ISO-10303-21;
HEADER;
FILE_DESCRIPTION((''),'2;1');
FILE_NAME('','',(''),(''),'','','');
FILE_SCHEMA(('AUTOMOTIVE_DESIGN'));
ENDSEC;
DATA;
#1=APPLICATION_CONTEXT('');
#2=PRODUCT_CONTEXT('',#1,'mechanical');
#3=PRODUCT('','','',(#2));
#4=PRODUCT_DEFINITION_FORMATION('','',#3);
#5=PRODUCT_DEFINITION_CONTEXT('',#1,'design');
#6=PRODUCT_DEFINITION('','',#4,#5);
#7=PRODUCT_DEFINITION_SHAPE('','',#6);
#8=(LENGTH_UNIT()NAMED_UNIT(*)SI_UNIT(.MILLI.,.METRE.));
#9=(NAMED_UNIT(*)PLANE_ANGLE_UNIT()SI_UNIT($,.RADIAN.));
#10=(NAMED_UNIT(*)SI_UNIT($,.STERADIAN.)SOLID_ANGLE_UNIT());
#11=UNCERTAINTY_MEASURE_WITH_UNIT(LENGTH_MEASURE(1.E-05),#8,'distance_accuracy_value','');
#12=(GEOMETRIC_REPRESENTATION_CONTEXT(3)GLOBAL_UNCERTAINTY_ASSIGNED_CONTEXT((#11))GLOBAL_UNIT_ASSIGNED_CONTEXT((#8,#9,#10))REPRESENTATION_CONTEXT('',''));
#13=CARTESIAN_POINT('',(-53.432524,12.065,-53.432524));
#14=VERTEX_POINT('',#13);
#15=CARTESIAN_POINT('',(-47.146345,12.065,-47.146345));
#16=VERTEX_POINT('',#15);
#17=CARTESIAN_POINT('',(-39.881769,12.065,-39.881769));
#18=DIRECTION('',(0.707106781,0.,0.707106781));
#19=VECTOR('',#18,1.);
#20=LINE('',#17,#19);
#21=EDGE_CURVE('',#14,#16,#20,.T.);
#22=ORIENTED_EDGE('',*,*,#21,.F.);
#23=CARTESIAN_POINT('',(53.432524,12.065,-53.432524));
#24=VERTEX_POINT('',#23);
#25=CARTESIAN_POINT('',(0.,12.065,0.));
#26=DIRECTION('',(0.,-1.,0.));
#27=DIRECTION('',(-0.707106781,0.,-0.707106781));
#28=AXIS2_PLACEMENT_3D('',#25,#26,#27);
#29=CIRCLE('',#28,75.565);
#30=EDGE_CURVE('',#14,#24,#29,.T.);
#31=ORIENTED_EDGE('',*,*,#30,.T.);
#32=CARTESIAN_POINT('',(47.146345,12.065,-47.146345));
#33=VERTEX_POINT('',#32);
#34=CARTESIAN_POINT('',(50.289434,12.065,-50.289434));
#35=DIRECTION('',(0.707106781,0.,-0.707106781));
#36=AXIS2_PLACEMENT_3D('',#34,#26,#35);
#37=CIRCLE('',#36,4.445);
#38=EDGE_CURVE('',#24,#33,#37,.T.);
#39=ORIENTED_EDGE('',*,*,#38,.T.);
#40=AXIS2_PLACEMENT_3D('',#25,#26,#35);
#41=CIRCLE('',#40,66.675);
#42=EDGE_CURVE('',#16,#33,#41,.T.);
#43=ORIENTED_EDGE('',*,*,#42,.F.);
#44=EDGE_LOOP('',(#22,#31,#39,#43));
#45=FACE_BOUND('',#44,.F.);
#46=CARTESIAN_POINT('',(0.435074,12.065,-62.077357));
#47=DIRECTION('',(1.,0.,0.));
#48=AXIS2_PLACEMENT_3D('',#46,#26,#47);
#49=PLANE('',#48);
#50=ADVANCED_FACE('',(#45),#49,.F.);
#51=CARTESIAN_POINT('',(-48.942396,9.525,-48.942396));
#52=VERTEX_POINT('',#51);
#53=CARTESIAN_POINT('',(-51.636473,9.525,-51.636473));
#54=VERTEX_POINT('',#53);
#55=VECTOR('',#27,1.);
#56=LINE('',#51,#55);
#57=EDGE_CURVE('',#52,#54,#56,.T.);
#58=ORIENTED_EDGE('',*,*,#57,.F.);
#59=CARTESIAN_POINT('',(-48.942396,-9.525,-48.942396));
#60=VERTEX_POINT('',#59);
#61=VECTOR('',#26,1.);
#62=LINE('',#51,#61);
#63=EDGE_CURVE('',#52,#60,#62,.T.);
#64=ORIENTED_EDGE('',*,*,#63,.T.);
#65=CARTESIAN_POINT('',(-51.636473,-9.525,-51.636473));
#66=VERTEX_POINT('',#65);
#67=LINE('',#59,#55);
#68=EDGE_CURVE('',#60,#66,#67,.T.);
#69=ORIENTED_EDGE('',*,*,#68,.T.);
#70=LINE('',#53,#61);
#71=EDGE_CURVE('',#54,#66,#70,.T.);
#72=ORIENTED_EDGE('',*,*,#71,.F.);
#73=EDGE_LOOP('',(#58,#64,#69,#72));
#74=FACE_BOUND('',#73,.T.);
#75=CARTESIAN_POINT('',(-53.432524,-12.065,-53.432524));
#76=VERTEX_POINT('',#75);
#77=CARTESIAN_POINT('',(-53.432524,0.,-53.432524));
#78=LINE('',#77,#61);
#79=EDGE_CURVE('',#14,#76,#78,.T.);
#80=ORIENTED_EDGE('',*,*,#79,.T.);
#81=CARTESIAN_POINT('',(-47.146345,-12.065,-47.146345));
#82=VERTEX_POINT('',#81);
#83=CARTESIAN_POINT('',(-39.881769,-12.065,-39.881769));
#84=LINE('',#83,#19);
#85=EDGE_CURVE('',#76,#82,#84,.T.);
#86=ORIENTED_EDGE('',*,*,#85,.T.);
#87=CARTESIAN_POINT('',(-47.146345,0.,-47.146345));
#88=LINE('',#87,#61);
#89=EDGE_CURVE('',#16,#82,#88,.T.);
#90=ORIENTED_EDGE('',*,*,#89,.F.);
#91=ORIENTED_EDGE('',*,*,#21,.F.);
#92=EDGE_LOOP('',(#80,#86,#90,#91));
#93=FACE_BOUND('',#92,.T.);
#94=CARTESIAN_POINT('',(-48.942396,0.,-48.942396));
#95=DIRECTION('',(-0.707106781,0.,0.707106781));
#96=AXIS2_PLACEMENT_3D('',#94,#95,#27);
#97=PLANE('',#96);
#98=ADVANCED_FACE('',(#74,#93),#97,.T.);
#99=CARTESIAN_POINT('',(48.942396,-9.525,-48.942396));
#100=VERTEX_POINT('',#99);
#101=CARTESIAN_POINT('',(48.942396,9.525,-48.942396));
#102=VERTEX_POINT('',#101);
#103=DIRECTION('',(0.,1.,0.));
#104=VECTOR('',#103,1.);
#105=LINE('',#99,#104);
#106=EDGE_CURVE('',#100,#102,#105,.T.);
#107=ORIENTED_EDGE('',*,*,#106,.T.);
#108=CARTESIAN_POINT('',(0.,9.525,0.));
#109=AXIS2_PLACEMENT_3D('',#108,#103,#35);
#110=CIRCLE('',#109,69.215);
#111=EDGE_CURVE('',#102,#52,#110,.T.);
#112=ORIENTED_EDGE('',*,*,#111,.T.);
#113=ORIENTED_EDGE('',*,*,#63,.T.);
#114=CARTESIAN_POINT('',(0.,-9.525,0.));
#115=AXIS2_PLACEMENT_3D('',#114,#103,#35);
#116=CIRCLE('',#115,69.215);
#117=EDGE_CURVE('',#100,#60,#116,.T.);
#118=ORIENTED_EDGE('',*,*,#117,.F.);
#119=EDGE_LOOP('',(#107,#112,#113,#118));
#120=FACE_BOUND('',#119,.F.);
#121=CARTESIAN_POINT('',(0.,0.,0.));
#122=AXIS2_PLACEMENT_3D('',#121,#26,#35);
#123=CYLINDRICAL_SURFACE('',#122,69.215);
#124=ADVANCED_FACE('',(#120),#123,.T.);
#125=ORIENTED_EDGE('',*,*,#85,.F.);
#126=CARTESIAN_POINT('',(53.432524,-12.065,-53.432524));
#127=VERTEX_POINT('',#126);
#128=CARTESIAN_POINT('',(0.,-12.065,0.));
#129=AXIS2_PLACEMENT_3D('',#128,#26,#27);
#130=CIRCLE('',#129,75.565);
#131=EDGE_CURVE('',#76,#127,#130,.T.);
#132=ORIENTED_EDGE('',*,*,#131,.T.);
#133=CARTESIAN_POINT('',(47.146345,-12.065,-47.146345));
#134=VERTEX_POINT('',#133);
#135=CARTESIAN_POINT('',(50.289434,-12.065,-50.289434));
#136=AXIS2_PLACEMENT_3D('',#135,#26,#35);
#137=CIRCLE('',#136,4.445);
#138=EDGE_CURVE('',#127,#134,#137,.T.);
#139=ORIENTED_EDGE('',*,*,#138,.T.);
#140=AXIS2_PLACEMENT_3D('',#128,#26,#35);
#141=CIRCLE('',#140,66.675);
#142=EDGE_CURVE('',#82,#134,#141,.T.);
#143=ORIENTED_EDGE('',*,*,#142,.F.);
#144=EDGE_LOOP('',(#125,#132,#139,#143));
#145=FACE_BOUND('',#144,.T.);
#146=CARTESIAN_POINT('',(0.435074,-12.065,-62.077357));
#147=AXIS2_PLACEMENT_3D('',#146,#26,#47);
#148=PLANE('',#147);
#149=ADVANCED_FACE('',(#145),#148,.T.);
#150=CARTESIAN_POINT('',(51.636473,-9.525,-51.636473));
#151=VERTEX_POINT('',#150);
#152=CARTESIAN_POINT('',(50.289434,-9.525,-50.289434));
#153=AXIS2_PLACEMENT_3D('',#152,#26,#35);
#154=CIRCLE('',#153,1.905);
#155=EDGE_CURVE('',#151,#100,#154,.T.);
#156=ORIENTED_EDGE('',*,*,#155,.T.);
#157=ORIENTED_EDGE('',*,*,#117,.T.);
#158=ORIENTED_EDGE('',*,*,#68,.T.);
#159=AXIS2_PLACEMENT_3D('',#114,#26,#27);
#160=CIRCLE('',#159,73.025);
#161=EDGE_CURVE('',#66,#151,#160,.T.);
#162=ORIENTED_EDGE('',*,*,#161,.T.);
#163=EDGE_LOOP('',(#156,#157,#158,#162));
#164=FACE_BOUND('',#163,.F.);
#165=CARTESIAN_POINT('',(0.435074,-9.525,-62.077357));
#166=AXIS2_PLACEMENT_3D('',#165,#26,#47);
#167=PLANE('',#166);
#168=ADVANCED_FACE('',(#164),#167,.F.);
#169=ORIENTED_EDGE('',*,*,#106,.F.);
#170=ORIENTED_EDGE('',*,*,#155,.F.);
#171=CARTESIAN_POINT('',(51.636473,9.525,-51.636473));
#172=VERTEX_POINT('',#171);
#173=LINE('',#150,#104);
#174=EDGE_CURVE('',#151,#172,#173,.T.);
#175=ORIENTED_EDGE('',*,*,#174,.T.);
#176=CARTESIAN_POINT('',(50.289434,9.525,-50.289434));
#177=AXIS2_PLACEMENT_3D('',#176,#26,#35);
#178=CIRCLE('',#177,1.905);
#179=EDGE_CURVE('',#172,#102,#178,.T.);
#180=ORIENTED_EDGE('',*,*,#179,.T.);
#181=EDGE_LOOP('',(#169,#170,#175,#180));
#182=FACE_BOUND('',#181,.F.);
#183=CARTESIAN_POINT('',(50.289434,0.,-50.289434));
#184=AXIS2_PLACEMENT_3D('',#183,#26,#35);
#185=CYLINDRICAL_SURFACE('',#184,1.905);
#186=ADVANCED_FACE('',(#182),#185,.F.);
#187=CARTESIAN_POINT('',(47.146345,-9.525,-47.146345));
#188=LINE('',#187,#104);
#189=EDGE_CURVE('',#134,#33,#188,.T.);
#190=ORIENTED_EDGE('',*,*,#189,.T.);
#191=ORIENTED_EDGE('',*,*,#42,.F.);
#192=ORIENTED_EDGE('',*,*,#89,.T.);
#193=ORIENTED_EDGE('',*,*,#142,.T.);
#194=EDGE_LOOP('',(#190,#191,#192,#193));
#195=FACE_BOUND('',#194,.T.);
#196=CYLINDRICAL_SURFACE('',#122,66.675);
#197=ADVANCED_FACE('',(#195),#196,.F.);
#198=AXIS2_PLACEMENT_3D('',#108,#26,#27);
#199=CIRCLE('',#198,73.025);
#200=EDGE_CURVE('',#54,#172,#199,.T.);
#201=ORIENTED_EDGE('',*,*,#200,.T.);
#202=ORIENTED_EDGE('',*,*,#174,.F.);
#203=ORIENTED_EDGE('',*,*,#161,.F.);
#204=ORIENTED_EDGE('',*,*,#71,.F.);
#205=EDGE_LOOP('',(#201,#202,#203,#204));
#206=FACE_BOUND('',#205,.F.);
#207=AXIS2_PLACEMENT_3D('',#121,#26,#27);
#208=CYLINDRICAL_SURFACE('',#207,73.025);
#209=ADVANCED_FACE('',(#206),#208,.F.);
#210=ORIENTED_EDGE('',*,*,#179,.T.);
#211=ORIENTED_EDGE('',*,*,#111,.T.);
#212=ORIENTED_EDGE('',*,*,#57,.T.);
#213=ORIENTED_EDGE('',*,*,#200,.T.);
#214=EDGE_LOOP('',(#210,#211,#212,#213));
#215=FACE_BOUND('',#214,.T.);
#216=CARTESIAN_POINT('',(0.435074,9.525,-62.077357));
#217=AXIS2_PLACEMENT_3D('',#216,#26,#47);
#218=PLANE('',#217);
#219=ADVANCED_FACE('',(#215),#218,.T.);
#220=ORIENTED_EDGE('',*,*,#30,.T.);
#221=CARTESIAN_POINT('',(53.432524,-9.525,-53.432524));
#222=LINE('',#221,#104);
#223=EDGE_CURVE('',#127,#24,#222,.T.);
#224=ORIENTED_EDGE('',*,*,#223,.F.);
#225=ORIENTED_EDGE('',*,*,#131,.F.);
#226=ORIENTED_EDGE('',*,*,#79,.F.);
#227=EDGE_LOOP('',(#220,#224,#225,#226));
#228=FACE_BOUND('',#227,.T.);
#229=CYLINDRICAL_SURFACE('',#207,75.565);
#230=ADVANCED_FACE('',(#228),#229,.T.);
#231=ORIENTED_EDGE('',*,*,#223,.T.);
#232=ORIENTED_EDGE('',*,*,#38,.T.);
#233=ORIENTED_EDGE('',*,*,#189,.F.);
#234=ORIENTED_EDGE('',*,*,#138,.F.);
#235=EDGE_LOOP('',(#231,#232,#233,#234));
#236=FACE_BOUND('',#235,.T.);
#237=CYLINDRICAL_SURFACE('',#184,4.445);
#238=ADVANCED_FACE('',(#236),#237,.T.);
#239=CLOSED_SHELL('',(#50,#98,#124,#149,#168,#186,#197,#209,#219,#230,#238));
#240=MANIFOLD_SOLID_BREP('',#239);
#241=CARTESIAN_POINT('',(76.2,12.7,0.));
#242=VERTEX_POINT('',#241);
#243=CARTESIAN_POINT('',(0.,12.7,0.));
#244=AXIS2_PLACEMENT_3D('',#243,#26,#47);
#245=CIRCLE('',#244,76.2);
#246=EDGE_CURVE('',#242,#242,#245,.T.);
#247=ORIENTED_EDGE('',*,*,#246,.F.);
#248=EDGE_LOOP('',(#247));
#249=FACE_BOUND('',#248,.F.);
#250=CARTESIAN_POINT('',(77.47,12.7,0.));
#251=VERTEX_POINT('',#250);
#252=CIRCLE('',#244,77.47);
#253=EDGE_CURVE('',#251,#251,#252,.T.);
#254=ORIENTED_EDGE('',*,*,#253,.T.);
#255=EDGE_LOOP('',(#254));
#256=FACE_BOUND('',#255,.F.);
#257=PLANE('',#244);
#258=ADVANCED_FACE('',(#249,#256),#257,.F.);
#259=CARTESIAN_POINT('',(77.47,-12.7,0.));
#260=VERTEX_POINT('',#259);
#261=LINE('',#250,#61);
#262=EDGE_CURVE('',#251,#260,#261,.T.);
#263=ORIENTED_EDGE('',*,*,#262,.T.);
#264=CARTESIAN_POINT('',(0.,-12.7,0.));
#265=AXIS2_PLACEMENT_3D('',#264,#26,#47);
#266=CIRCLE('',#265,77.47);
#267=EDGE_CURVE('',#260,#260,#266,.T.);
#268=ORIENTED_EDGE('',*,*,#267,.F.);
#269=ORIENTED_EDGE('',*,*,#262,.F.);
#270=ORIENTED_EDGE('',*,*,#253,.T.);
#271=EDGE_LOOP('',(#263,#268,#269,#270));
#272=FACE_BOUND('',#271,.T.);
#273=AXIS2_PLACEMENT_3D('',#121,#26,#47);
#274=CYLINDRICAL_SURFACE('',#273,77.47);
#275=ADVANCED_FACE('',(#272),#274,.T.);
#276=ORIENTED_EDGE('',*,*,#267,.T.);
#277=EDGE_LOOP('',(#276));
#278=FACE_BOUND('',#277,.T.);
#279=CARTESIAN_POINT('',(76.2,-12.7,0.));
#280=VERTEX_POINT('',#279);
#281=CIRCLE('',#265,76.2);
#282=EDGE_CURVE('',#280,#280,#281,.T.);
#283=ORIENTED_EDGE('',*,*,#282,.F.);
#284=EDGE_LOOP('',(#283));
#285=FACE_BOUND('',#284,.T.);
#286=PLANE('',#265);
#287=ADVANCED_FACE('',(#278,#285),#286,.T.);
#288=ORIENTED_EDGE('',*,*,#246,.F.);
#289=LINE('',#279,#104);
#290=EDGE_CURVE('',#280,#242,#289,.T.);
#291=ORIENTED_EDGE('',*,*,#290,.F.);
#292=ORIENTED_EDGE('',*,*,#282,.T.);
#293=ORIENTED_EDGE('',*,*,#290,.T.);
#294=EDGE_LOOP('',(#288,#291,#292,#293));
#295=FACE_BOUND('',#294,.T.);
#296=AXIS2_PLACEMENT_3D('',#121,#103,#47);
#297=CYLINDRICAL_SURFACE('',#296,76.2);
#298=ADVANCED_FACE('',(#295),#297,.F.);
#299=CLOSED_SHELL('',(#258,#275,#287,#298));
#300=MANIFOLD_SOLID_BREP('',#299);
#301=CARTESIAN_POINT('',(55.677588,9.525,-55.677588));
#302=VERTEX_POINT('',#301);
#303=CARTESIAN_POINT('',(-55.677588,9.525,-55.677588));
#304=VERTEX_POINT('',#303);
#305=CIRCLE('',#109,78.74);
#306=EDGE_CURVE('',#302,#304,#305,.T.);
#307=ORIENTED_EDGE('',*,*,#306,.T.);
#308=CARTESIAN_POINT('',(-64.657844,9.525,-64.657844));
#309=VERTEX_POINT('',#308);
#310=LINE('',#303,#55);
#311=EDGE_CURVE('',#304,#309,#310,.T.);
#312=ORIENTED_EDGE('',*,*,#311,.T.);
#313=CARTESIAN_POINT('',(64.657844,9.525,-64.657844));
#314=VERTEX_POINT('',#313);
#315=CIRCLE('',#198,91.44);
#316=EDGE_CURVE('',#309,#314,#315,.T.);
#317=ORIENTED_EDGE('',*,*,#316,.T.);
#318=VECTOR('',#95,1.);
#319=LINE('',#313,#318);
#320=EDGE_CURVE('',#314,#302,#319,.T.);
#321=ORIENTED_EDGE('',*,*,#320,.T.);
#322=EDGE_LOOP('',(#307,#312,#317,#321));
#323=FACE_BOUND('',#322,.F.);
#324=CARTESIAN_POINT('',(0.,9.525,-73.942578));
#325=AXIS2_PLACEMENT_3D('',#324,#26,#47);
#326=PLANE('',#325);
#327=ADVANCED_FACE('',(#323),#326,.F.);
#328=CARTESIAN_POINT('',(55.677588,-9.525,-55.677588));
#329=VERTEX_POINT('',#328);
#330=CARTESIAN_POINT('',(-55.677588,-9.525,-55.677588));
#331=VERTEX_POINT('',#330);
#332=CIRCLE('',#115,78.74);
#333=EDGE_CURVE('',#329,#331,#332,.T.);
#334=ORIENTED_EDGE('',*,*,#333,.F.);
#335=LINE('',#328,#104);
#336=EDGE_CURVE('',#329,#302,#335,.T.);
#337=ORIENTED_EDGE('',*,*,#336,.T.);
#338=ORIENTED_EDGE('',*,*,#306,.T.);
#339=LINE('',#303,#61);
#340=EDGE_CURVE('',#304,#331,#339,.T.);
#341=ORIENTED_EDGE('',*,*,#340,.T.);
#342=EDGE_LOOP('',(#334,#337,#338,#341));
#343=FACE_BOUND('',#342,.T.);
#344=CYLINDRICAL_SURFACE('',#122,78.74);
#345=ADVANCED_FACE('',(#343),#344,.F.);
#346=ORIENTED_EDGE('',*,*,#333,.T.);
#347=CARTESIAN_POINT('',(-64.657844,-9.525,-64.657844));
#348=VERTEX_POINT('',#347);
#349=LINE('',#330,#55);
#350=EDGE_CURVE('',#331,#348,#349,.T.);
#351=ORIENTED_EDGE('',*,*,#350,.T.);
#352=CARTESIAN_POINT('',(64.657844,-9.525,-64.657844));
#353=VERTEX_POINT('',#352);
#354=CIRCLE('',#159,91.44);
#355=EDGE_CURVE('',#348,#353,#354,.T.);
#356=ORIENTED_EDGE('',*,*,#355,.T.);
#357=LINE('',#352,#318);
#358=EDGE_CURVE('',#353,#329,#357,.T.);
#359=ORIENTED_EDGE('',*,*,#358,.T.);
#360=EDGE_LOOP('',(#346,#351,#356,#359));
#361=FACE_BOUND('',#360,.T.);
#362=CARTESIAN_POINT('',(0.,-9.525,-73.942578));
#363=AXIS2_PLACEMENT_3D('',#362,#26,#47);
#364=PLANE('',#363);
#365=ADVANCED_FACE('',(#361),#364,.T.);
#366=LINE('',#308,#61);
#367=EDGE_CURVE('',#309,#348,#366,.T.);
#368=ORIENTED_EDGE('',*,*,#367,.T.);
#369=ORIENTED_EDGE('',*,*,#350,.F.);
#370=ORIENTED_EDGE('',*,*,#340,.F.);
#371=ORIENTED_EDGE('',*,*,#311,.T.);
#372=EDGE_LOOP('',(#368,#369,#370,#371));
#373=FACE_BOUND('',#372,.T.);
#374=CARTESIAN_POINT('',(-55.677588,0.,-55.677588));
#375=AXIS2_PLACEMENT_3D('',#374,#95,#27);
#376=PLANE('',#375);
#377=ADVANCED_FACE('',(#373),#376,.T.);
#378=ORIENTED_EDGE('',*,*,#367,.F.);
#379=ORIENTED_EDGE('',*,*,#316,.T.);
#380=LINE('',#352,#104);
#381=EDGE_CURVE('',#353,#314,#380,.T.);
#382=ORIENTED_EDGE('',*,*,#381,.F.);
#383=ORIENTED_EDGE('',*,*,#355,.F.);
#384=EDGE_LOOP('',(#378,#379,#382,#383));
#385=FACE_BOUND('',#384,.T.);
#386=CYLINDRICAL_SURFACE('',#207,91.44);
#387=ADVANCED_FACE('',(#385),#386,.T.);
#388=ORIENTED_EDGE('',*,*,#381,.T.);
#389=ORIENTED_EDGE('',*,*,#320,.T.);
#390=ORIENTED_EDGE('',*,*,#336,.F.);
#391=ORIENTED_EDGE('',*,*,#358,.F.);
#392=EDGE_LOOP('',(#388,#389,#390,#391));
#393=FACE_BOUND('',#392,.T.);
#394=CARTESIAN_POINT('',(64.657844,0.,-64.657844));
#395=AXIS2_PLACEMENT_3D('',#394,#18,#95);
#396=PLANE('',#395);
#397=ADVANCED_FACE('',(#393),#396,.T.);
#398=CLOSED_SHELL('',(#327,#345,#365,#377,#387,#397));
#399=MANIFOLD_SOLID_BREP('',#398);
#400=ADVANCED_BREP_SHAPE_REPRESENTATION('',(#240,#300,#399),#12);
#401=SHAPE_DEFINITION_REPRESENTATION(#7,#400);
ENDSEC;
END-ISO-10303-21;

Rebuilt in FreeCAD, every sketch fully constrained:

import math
import FreeCAD as App
import Part
import Sketcher
Q = App.Units.Quantity


def faces_at(feature, points):
    """Names of the faces that lie closest to the given points."""
    faces = feature.Shape.Faces
    near = lambda p: min(range(len(faces)), key=lambda i: faces[i].distToShape(Part.Vertex(*p))[0])
    return sorted({f"Face{near(p) + 1}" for p in points})

doc = App.newDocument("Part")
body = doc.addObject("PartDesign::Body", "Body")

sketch1 = doc.addObject("Sketcher::SketchObject", "Sketch")
body.addObject(sketch1)
sketch1.AttachmentSupport = (doc.XZ_Plane, [""])
sketch1.MapMode = "FlatFace"
sketch1.addGeometry(Part.Circle(App.Vector(0, 0, 0), App.Vector(0, 0, 1), 77), False)
sketch1.addGeometry(Part.Circle(App.Vector(0, 0, 0), App.Vector(0, 0, 1), 76), False)
sketch1.addConstraint(Sketcher.Constraint("Coincident", 0, 3, -1, 1))
sketch1.addConstraint(Sketcher.Constraint("Coincident", 1, 3, -1, 1))
sketch1.addConstraint(Sketcher.Constraint("Diameter", 1, Q("6 in")))
sketch1.addConstraint(Sketcher.Constraint("Diameter", 0, Q("6.1 in")))
pad1 = doc.addObject("PartDesign::Pad", "Pad")
body.addObject(pad1)
pad1.Profile = sketch1
pad1.Length = Q("1 in")
pad1.Midplane = True
body2 = doc.addObject("PartDesign::Body", "Body001")

sketch2 = doc.addObject("Sketcher::SketchObject", "Sketch001")
body2.addObject(sketch2)
sketch2.AttachmentSupport = (doc.getObject("XZ_Plane001"), [""])
sketch2.MapMode = "FlatFace"
sketch2.addGeometry(Part.ArcOfCircle(Part.Circle(App.Vector(0, 0, 0), App.Vector(0, 0, 1), 69.2), math.radians(-135), math.radians(-45)), False)
sketch2.addGeometry(Part.LineSegment(App.Vector(-48.9, -48.9, 0), App.Vector(-51.6, -51.6, 0)), False)
sketch2.addGeometry(Part.ArcOfCircle(Part.Circle(App.Vector(0, 0, 0), App.Vector(0, 0, 1), 73), math.radians(-135), math.radians(-45)), False)
sketch2.addGeometry(Part.ArcOfCircle(Part.Circle(App.Vector(50.3, -50.3, 0), App.Vector(0, 0, 1), 1.9), math.radians(-45), math.radians(135)), False)
sketch2.addConstraint(Sketcher.Constraint("Coincident", 0, 1, 1, 1))
sketch2.addConstraint(Sketcher.Constraint("Coincident", 1, 2, 2, 1))
sketch2.addConstraint(Sketcher.Constraint("Tangent", 2, 2, 3, 1))
sketch2.addConstraint(Sketcher.Constraint("Tangent", 3, 2, 0, 2))
sketch2.addConstraint(Sketcher.Constraint("Coincident", 0, 3, -1, 1))
sketch2.addConstraint(Sketcher.Constraint("Coincident", 2, 3, -1, 1))
sketch2.addConstraint(Sketcher.Constraint("Horizontal", 1, 2, 2, 2))
sketch2.addConstraint(Sketcher.Constraint("Horizontal", 0, 1, 3, 2))
sketch2.addConstraint(Sketcher.Constraint("Angle", 1, Q("-135 deg")))
sketch2.addConstraint(Sketcher.Constraint("Radius", 0, Q("2.725 in")))
sketch2.addConstraint(Sketcher.Constraint("Radius", 2, Q("2.875 in")))
pad2 = doc.addObject("PartDesign::Pad", "Pad001")
body2.addObject(pad2)
pad2.Profile = sketch2
pad2.Length = Q("0.75 in")
pad2.Midplane = True
doc.recompute()

thickness = doc.addObject("PartDesign::Thickness", "Thickness")
body2.addObject(thickness)
thickness.Base = (pad2, faces_at(pad2, [(-50.289, 0, -50.289)]))
thickness.Value = Q("0.1 in")
thickness.Reversed = False
thickness.Join = "Intersection"
body3 = doc.addObject("PartDesign::Body", "Body002")

sketch3 = doc.addObject("Sketcher::SketchObject", "Sketch002")
body3.addObject(sketch3)
sketch3.AttachmentSupport = (doc.getObject("XZ_Plane002"), [""])
sketch3.MapMode = "FlatFace"
sketch3.addGeometry(Part.ArcOfCircle(Part.Circle(App.Vector(0, 0, 0), App.Vector(0, 0, 1), 79), math.radians(-135), math.radians(-45)), False)
sketch3.addGeometry(Part.LineSegment(App.Vector(-56, -56, 0), App.Vector(-65, -65, 0)), False)
sketch3.addGeometry(Part.ArcOfCircle(Part.Circle(App.Vector(0, 0, 0), App.Vector(0, 0, 1), 91), math.radians(-135), math.radians(-45)), False)
sketch3.addGeometry(Part.LineSegment(App.Vector(65, -65, 0), App.Vector(56, -56, 0)), False)
sketch3.addConstraint(Sketcher.Constraint("Coincident", 0, 1, 1, 1))
sketch3.addConstraint(Sketcher.Constraint("Coincident", 1, 2, 2, 1))
sketch3.addConstraint(Sketcher.Constraint("Coincident", 2, 2, 3, 1))
sketch3.addConstraint(Sketcher.Constraint("Coincident", 3, 2, 0, 2))
sketch3.addConstraint(Sketcher.Constraint("Coincident", 0, 3, -1, 1))
sketch3.addConstraint(Sketcher.Constraint("Coincident", 2, 3, -1, 1))
sketch3.addConstraint(Sketcher.Constraint("Perpendicular", 1, 3))
sketch3.addConstraint(Sketcher.Constraint("Horizontal", 1, 2, 2, 2))
sketch3.addConstraint(Sketcher.Constraint("Horizontal", 0, 1, 3, 2))
sketch3.addConstraint(Sketcher.Constraint("Radius", 0, Q("3.1 in")))
sketch3.addConstraint(Sketcher.Constraint("Radius", 2, Q("3.6 in")))
sketch3.addConstraint(Sketcher.Constraint("DistanceX", 1, 2, 2, 2, 129.315688))
pad3 = doc.addObject("PartDesign::Pad", "Pad002")
body3.addObject(pad3)
pad3.Profile = sketch3
pad3.Length = Q("0.75 in")
pad3.Midplane = True

doc.recompute()
